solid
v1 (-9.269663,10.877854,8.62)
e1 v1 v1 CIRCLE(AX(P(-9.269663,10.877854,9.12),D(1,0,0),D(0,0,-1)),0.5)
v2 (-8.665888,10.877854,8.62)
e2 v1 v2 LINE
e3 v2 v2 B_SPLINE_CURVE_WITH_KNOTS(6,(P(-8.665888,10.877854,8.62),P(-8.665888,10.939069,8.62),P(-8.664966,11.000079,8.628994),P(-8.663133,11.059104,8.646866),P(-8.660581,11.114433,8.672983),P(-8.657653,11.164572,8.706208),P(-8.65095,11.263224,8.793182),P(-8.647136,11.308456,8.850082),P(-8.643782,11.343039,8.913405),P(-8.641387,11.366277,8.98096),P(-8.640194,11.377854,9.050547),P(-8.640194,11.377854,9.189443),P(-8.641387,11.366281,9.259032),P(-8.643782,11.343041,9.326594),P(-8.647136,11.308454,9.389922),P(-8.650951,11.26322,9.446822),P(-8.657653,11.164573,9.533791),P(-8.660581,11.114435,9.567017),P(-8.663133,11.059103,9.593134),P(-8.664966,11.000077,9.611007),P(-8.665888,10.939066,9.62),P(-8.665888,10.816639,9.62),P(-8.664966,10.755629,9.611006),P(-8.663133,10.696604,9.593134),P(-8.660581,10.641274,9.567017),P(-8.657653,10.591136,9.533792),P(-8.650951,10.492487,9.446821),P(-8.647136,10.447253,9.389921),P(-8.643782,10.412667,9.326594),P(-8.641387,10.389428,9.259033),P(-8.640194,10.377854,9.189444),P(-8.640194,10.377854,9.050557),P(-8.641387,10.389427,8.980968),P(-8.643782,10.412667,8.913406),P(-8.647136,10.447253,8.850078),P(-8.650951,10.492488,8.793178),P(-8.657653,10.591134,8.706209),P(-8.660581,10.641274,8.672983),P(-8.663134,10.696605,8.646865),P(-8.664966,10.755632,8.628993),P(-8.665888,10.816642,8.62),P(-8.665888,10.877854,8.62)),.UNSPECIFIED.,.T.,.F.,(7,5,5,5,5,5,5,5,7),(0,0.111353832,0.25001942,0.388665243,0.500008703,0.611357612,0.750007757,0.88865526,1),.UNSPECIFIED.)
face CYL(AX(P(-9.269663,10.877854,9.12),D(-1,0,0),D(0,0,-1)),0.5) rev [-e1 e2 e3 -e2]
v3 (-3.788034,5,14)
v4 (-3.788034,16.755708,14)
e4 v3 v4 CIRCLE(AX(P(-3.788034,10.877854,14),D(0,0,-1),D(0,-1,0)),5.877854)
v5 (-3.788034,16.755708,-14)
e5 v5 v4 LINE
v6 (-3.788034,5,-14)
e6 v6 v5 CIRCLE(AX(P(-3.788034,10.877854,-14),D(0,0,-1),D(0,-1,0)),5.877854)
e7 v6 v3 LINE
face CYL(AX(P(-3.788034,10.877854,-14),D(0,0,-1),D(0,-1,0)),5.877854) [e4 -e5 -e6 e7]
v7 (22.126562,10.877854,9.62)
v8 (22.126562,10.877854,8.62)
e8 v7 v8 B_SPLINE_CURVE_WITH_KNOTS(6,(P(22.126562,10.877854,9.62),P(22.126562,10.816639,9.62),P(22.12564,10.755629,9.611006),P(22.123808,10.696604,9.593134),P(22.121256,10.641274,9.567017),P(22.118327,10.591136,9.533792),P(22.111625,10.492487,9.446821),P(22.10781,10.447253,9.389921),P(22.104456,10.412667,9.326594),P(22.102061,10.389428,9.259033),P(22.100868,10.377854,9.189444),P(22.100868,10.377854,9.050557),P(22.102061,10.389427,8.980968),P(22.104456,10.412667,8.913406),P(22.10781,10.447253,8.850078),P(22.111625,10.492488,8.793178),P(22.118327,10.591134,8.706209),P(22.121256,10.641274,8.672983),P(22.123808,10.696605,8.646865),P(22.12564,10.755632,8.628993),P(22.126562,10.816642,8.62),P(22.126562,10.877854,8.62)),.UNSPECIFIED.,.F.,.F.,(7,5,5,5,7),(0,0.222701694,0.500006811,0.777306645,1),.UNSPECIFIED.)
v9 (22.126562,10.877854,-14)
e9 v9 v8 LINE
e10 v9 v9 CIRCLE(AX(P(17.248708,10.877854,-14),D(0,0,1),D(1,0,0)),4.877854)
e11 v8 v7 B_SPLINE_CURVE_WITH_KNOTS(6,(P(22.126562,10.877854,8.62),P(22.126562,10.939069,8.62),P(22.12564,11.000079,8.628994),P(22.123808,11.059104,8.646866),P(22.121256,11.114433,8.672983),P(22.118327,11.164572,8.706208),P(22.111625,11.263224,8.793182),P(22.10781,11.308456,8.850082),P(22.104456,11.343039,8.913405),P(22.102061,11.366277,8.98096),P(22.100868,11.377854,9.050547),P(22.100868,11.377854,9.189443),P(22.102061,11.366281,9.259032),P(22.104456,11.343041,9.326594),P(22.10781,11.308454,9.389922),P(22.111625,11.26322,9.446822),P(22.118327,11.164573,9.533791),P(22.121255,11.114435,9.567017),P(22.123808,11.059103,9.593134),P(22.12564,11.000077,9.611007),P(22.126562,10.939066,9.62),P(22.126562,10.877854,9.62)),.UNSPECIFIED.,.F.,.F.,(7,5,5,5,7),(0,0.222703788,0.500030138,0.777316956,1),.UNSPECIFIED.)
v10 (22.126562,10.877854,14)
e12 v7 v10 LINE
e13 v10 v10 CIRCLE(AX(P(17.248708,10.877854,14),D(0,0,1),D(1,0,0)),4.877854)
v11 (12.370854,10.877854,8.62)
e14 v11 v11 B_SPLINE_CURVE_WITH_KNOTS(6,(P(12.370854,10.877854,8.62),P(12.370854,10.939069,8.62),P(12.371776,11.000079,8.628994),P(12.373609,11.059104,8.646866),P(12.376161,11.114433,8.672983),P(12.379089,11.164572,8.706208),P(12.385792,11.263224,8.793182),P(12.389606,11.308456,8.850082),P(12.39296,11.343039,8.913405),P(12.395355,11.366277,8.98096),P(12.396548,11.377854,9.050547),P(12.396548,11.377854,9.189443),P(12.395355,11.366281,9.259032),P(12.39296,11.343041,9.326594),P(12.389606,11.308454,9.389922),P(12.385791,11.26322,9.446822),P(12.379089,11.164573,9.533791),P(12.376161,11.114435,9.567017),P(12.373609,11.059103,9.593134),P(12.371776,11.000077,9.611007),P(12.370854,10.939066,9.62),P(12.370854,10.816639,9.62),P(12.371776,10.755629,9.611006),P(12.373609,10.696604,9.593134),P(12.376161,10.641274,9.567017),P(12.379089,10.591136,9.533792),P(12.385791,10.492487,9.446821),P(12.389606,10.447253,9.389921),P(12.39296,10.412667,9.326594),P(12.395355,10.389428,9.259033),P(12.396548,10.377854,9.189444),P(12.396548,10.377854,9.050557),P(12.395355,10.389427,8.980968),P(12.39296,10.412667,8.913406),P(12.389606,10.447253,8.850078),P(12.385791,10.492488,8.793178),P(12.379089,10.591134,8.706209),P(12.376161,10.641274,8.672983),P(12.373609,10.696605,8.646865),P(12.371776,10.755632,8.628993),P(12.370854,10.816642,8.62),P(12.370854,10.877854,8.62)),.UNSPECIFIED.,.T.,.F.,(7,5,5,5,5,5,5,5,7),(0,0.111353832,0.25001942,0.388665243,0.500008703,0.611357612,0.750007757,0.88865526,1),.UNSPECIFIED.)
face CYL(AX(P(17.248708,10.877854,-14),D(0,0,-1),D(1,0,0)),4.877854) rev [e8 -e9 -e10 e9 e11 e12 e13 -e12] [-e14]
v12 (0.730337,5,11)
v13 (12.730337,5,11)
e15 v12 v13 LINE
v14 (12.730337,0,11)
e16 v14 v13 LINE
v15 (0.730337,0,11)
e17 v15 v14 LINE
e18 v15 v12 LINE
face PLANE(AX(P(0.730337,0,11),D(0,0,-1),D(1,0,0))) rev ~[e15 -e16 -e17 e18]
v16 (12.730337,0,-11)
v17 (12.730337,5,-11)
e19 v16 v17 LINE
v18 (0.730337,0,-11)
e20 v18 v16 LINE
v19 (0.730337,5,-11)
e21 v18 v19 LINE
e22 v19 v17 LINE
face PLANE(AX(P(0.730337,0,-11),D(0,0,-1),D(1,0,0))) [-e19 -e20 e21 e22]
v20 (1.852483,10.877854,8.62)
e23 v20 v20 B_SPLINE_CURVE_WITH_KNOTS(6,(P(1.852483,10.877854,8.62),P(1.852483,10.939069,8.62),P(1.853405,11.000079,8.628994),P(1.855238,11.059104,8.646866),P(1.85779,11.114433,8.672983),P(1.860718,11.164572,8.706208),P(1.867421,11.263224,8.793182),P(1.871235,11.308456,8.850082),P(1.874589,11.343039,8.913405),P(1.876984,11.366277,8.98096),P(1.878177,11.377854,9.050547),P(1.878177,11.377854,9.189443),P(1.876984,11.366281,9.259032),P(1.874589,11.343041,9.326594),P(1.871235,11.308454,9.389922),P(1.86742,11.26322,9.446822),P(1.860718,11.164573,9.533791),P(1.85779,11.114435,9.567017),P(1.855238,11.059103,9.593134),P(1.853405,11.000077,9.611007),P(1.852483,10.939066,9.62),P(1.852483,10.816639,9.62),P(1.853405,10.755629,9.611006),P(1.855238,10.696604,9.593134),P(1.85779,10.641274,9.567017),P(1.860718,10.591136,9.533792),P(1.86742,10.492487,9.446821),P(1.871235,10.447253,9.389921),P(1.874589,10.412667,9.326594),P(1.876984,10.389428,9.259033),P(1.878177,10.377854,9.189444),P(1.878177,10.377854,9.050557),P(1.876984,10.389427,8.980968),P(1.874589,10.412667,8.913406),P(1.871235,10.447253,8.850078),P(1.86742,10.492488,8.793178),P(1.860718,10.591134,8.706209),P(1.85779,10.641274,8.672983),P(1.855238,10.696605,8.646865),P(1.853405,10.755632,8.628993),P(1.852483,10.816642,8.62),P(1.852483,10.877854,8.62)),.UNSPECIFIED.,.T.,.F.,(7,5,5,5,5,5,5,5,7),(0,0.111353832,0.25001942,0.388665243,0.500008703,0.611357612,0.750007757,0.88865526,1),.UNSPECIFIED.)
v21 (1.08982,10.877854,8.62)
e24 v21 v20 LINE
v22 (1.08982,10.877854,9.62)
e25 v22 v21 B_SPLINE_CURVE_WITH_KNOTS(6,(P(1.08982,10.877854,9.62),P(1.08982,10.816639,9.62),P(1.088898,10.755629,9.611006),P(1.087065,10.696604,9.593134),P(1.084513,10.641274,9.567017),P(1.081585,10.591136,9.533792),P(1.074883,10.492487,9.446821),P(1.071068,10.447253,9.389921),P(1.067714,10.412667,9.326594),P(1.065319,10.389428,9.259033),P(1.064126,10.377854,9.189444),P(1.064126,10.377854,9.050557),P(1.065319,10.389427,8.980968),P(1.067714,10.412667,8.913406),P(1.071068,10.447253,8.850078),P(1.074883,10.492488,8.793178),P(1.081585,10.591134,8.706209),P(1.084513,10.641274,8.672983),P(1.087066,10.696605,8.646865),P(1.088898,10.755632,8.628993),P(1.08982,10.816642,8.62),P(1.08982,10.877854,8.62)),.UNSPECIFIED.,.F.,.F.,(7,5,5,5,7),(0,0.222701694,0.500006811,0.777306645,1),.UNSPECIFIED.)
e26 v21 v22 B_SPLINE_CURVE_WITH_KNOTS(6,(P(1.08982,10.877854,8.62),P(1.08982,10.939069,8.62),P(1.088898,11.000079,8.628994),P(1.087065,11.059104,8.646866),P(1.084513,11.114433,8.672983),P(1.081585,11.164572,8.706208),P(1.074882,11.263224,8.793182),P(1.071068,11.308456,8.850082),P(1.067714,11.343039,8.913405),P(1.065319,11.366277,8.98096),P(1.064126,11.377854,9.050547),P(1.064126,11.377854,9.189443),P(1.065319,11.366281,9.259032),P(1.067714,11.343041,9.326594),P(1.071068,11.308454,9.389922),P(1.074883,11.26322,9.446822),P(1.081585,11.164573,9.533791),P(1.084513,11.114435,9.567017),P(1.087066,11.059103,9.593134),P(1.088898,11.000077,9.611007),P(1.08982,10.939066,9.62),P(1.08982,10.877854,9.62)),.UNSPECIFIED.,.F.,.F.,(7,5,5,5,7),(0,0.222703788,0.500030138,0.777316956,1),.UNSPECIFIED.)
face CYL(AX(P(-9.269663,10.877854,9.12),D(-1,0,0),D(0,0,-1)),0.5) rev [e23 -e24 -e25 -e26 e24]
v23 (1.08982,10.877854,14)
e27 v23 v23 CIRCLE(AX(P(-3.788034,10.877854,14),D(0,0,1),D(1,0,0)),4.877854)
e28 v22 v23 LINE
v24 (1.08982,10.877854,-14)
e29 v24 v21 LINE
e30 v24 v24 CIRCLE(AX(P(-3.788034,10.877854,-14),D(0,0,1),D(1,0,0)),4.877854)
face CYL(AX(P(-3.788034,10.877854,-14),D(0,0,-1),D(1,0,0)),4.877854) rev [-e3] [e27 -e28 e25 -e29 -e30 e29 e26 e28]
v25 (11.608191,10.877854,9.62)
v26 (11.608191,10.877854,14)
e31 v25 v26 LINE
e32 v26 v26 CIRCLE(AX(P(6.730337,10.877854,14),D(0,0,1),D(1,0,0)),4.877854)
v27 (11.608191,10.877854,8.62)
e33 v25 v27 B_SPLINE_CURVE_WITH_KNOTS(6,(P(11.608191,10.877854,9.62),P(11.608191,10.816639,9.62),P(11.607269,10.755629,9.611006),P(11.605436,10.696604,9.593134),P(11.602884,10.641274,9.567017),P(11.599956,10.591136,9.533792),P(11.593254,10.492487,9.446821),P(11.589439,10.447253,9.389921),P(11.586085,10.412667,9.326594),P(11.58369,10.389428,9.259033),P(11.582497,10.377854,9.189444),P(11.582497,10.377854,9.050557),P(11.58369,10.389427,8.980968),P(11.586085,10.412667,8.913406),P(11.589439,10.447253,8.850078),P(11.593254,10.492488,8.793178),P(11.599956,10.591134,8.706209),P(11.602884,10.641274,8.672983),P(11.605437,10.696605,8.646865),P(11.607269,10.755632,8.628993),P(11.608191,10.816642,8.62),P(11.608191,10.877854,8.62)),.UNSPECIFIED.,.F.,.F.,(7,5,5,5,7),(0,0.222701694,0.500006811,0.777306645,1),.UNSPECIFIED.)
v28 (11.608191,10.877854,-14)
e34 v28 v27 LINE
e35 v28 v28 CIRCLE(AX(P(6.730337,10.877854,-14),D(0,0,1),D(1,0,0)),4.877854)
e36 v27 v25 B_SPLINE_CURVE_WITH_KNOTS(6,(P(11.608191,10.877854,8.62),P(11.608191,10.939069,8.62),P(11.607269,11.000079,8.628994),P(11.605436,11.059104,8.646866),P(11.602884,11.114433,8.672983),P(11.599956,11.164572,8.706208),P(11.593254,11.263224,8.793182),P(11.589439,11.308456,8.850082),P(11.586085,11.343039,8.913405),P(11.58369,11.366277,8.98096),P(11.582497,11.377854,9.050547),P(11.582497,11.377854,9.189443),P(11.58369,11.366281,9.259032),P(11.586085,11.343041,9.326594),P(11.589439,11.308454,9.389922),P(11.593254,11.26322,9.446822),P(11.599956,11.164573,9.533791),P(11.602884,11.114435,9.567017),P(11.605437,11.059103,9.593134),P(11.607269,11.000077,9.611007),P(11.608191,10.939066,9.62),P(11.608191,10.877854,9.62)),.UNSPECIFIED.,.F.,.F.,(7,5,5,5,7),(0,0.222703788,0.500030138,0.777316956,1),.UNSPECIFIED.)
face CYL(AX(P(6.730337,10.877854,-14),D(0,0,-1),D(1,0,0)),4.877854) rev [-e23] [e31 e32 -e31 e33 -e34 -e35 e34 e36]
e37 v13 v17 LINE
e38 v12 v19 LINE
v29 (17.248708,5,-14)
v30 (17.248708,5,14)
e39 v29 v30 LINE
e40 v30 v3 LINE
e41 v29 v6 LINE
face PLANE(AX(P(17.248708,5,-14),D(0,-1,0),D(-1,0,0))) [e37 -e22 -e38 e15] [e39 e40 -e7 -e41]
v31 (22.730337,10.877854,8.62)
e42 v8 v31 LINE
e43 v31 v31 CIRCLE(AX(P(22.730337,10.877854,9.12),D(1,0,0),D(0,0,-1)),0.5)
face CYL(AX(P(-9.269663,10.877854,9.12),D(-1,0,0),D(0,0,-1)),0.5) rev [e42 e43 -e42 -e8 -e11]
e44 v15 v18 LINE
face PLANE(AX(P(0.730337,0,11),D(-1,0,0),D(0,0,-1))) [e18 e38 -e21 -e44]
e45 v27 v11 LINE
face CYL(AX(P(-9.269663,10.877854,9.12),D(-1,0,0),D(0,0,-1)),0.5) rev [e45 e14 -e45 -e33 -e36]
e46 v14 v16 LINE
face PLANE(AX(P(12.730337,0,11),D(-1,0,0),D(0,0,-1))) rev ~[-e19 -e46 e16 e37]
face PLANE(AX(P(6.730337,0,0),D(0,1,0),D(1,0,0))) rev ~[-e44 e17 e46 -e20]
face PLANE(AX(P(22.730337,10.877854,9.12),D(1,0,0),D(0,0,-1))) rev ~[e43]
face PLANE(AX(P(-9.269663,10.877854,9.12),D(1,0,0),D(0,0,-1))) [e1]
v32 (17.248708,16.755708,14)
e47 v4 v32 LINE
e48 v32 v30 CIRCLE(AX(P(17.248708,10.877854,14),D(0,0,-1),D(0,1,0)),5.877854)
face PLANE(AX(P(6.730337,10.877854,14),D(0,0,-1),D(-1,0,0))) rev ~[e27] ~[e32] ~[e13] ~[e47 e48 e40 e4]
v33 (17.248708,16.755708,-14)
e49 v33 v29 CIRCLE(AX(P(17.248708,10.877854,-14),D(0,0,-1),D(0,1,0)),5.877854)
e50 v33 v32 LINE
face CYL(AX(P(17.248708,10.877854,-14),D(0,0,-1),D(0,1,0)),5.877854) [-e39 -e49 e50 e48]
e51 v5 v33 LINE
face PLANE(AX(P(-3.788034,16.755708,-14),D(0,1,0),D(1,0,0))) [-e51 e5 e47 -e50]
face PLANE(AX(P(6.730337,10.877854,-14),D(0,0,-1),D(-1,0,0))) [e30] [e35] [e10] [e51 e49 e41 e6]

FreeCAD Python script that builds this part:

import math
import FreeCAD as App
import Part
import Sketcher
from FreeCAD import Vector


def add_polygon(sketch, points):
    """Adds a closed chain of lines whose ends are joined by coincident constraints."""
    first, n = sketch.GeometryCount, len(points)
    for a, b in zip(points, points[1:] + points[:1]):
        sketch.addGeometry(Part.LineSegment(App.Vector(*a, 0), App.Vector(*b, 0)), False)
    for i in range(n):
        sketch.addConstraint(Sketcher.Constraint("Coincident", first + i, 2, first + (i + 1) % n, 1))

doc = App.newDocument("Part")
body = doc.addObject("PartDesign::Body", "Body")

# Sketch on XZ plane
sketch1 = body.newObject("Sketcher::SketchObject", "Sketch")
sketch1.AttachmentSupport = (doc.getObject("XZ_Plane"), [""])
sketch1.MapMode = "FlatFace"
add_polygon(sketch1, [(1, -11), (1, 11), (13, 11), (13, -11)])  # lines 0-3
sketch1.addConstraint([
    Sketcher.Constraint("Vertical", 0),
    Sketcher.Constraint("Horizontal", 1),
    Sketcher.Constraint("Vertical", 2),
    Sketcher.Constraint("Horizontal", 3),
    Sketcher.Constraint("DistanceX", 1, 1, 1, 2, 12.0),
    Sketcher.Constraint("DistanceY", 0, 1, 0, 2, 22.0),
    Sketcher.Constraint("DistanceY", -1, 1, 0, 2, 11.0),
    Sketcher.Constraint("DistanceX", -1, 1, 0, 2, 0.730337),
])
pad1 = body.newObject("PartDesign::Pad", "Pad")
pad1.Profile = sketch1
pad1.Length = 5
pad1.Reversed = True

# Sketch on XY plane
sketch2 = body.newObject("Sketcher::SketchObject", "Sketch001")
sketch2.AttachmentSupport = (doc.getObject("XY_Plane"), [""])
sketch2.MapMode = "FlatFace"
sketch2.AttachmentOffset = App.Placement(Vector(0, 0, 11), App.Rotation())
sketch2.addGeometry([
    Part.LineSegment(Vector(17.2, 16.8, 0), Vector(-3.8, 16.8, 0)),  # 0
    Part.ArcOfCircle(Part.Circle(Vector(-3.8, 10.9, 0), Vector(0, 0, 1), 5.9), math.radians(90), math.radians(270)),  # 1
    Part.LineSegment(Vector(-3.8, 5, 0), Vector(17.2, 5, 0)),  # 2
    Part.ArcOfCircle(Part.Circle(Vector(17.2, 10.9, 0), Vector(0, 0, 1), 5.9), math.radians(-90), math.radians(90)),  # 3
    Part.Circle(Vector(17.2, 10.9, 0), Vector(0, 0, 1), 4.9),  # 4
    Part.Circle(Vector(6.7, 10.9, 0), Vector(0, 0, 1), 4.9),  # 5
    Part.Circle(Vector(-3.8, 10.9, 0), Vector(0, 0, 1), 4.9),  # 6
], False)
sketch2.addConstraint([
    Sketcher.Constraint("Tangent", 0, 2, 1, 1),
    Sketcher.Constraint("Tangent", 1, 2, 2, 1),
    Sketcher.Constraint("Tangent", 2, 2, 3, 1),
    Sketcher.Constraint("Tangent", 3, 2, 0, 1),
    Sketcher.Constraint("Horizontal", 0),
    Sketcher.Constraint("Horizontal", 2),
    Sketcher.Constraint("Coincident", 4, 3, 3, 3),
    Sketcher.Constraint("Coincident", 6, 3, 1, 3),
    Sketcher.Constraint("Equal", 4, 5),
    Sketcher.Constraint("Equal", 5, 6),
    Sketcher.Constraint("Horizontal", 4, 3, 5, 3),
    Sketcher.Constraint("DistanceY", -1, 1, 1, 2, 5.0),
    Sketcher.Constraint("Diameter", 4, 9.755708),
    Sketcher.Constraint("Radius", 1, 5.877854),
    Sketcher.Constraint("DistanceX", 0, 2, 0, 1, 21.036742),
    Sketcher.Constraint("DistanceX", -1, 1, 3, 3, 17.248708),
    Sketcher.Constraint("DistanceX", 5, 3, 3, 3, 10.518371),
])
pad2 = body.newObject("PartDesign::Pad", "Pad001")
pad2.Profile = sketch2
pad2.Type = "TwoLengths"
pad2.Length = 3
pad2.Length2 = 25

# Sketch on YZ plane
sketch3 = body.newObject("Sketcher::SketchObject", "Sketch002")
sketch3.AttachmentSupport = (doc.getObject("YZ_Plane"), [""])
sketch3.MapMode = "FlatFace"
sketch3.AttachmentOffset = App.Placement(Vector(0, 0, 6.730337), App.Rotation())
sketch3.addGeometry(Part.Circle(Vector(10.9, 9.1, 0), Vector(0, 0, 1), 0.5), False)
sketch3.addConstraint([
    Sketcher.Constraint("Diameter", 0, 1.0),
    Sketcher.Constraint("DistanceY", -1, 1, 0, 3, 9.12),
    Sketcher.Constraint("DistanceX", -1, 1, 0, 3, 10.877854),
])
pocket1 = body.newObject("PartDesign::Pocket", "Pocket")
pocket1.Profile = sketch3
pocket1.Type = "TwoLengths"
pocket1.Length = 16
pocket1.Length2 = 16
pocket1.Reversed = True

doc.recompute()
